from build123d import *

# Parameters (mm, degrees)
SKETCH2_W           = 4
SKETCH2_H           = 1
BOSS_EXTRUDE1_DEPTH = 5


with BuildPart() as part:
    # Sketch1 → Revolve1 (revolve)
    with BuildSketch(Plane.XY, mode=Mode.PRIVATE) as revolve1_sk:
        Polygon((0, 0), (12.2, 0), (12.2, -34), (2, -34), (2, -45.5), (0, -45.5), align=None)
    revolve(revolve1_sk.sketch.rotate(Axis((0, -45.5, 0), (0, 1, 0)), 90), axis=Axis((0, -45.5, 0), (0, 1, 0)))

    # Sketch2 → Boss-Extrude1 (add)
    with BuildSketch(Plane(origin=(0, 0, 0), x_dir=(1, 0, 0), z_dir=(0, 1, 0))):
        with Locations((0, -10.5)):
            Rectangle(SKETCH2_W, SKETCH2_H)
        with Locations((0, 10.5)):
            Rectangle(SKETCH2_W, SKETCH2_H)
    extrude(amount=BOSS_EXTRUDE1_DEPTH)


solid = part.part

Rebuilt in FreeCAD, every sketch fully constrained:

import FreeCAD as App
import Part
import Sketcher
from FreeCAD import Vector

doc = App.newDocument("Part")
body = doc.addObject("PartDesign::Body", "Body")

sketch1 = body.newObject("Sketcher::SketchObject", "Sketch")
sketch1.AttachmentSupport = (doc.getObject("XY_Plane"), [""])
sketch1.MapMode = "FlatFace"
sketch1.addGeometry(Part.LineSegment(Vector(12.2, 0, 0), Vector(0, 0, 0)), False)
sketch1.addGeometry(Part.LineSegment(Vector(0, 0, 0), Vector(0, -45.5, 0)), False)
sketch1.addGeometry(Part.LineSegment(Vector(0, -45.5, 0), Vector(2, -45.5, 0)), False)
sketch1.addGeometry(Part.LineSegment(Vector(2, -45.5, 0), Vector(2, -34, 0)), False)
sketch1.addGeometry(Part.LineSegment(Vector(2, -34, 0), Vector(12.2, -34, 0)), False)
sketch1.addGeometry(Part.LineSegment(Vector(12.2, -34, 0), Vector(12.2, 0, 0)), False)
sketch1.addConstraint(Sketcher.Constraint("Coincident", 0, 2, 1, 1))
sketch1.addConstraint(Sketcher.Constraint("Coincident", 1, 2, 2, 1))
sketch1.addConstraint(Sketcher.Constraint("Coincident", 2, 2, 3, 1))
sketch1.addConstraint(Sketcher.Constraint("Coincident", 3, 2, 4, 1))
sketch1.addConstraint(Sketcher.Constraint("Coincident", 4, 2, 5, 1))
sketch1.addConstraint(Sketcher.Constraint("Coincident", 5, 2, 0, 1))
sketch1.addConstraint(Sketcher.Constraint("Horizontal", 0))
sketch1.addConstraint(Sketcher.Constraint("Vertical", 1))
sketch1.addConstraint(Sketcher.Constraint("Horizontal", 2))
sketch1.addConstraint(Sketcher.Constraint("Vertical", 3))
sketch1.addConstraint(Sketcher.Constraint("Horizontal", 4))
sketch1.addConstraint(Sketcher.Constraint("Vertical", 5))
sketch1.addConstraint(Sketcher.Constraint("Coincident", 0, 2, -1, 1))
sketch1.addConstraint(Sketcher.Constraint("DistanceX", 2, 1, 2, 2, 2.0))
sketch1.addConstraint(Sketcher.Constraint("DistanceY", 5, 1, 5, 2, 34.0))
sketch1.addConstraint(Sketcher.Constraint("DistanceX", 0, 2, 0, 1, 12.2))
sketch1.addConstraint(Sketcher.Constraint("DistanceY", 1, 2, 1, 1, 45.5))
revolution = body.newObject("PartDesign::Revolution", "Revolution")
revolution.Profile = sketch1
revolution.ReferenceAxis = (sketch1, ["V_Axis"])
revolution.Angle = 360

sketch2 = body.newObject("Sketcher::SketchObject", "Sketch001")
sketch2.AttachmentSupport = (doc.getObject("XZ_Plane"), [""])
sketch2.MapMode = "FlatFace"
sketch2.addGeometry(Part.LineSegment(Vector(-2, 10, 0), Vector(-2, 11, 0)), False)
sketch2.addGeometry(Part.LineSegment(Vector(-2, 11, 0), Vector(2, 11, 0)), False)
sketch2.addGeometry(Part.LineSegment(Vector(2, 11, 0), Vector(2, 10, 0)), False)
sketch2.addGeometry(Part.LineSegment(Vector(2, 10, 0), Vector(-2, 10, 0)), False)
sketch2.addGeometry(Part.LineSegment(Vector(-2, -11, 0), Vector(-2, -10, 0)), False)
sketch2.addGeometry(Part.LineSegment(Vector(-2, -10, 0), Vector(2, -10, 0)), False)
sketch2.addGeometry(Part.LineSegment(Vector(2, -10, 0), Vector(2, -11, 0)), False)
sketch2.addGeometry(Part.LineSegment(Vector(2, -11, 0), Vector(-2, -11, 0)), False)
sketch2.addConstraint(Sketcher.Constraint("Coincident", 0, 2, 1, 1))
sketch2.addConstraint(Sketcher.Constraint("Coincident", 1, 2, 2, 1))
sketch2.addConstraint(Sketcher.Constraint("Coincident", 2, 2, 3, 1))
sketch2.addConstraint(Sketcher.Constraint("Coincident", 3, 2, 0, 1))
sketch2.addConstraint(Sketcher.Constraint("Coincident", 4, 2, 5, 1))
sketch2.addConstraint(Sketcher.Constraint("Coincident", 5, 2, 6, 1))
sketch2.addConstraint(Sketcher.Constraint("Coincident", 6, 2, 7, 1))
sketch2.addConstraint(Sketcher.Constraint("Coincident", 7, 2, 4, 1))
sketch2.addConstraint(Sketcher.Constraint("Vertical", 0))
sketch2.addConstraint(Sketcher.Constraint("Horizontal", 1))
sketch2.addConstraint(Sketcher.Constraint("Vertical", 2))
sketch2.addConstraint(Sketcher.Constraint("Horizontal", 3))
sketch2.addConstraint(Sketcher.Constraint("Vertical", 4))
sketch2.addConstraint(Sketcher.Constraint("Horizontal", 5))
sketch2.addConstraint(Sketcher.Constraint("Vertical", 6))
sketch2.addConstraint(Sketcher.Constraint("Horizontal", 7))
sketch2.addConstraint(Sketcher.Constraint("Symmetric", 2, 2, 4, 2, -1, 1))
sketch2.addConstraint(Sketcher.Constraint("Symmetric", 0, 2, 6, 2, -1, 1))
sketch2.addConstraint(Sketcher.Constraint("Vertical", 3, 2, 4, 2))
sketch2.addConstraint(Sketcher.Constraint("DistanceX", 1, 1, 1, 2, 4.0))
sketch2.addConstraint(Sketcher.Constraint("DistanceY", 0, 1, 0, 2, 1.0))
sketch2.addConstraint(Sketcher.Constraint("DistanceY", -1, 1, 0, 2, 11.0))
pad1 = body.newObject("PartDesign::Pad", "Pad")
pad1.Profile = sketch2
pad1.Length = 5
pad1.Reversed = True

doc.recompute()
